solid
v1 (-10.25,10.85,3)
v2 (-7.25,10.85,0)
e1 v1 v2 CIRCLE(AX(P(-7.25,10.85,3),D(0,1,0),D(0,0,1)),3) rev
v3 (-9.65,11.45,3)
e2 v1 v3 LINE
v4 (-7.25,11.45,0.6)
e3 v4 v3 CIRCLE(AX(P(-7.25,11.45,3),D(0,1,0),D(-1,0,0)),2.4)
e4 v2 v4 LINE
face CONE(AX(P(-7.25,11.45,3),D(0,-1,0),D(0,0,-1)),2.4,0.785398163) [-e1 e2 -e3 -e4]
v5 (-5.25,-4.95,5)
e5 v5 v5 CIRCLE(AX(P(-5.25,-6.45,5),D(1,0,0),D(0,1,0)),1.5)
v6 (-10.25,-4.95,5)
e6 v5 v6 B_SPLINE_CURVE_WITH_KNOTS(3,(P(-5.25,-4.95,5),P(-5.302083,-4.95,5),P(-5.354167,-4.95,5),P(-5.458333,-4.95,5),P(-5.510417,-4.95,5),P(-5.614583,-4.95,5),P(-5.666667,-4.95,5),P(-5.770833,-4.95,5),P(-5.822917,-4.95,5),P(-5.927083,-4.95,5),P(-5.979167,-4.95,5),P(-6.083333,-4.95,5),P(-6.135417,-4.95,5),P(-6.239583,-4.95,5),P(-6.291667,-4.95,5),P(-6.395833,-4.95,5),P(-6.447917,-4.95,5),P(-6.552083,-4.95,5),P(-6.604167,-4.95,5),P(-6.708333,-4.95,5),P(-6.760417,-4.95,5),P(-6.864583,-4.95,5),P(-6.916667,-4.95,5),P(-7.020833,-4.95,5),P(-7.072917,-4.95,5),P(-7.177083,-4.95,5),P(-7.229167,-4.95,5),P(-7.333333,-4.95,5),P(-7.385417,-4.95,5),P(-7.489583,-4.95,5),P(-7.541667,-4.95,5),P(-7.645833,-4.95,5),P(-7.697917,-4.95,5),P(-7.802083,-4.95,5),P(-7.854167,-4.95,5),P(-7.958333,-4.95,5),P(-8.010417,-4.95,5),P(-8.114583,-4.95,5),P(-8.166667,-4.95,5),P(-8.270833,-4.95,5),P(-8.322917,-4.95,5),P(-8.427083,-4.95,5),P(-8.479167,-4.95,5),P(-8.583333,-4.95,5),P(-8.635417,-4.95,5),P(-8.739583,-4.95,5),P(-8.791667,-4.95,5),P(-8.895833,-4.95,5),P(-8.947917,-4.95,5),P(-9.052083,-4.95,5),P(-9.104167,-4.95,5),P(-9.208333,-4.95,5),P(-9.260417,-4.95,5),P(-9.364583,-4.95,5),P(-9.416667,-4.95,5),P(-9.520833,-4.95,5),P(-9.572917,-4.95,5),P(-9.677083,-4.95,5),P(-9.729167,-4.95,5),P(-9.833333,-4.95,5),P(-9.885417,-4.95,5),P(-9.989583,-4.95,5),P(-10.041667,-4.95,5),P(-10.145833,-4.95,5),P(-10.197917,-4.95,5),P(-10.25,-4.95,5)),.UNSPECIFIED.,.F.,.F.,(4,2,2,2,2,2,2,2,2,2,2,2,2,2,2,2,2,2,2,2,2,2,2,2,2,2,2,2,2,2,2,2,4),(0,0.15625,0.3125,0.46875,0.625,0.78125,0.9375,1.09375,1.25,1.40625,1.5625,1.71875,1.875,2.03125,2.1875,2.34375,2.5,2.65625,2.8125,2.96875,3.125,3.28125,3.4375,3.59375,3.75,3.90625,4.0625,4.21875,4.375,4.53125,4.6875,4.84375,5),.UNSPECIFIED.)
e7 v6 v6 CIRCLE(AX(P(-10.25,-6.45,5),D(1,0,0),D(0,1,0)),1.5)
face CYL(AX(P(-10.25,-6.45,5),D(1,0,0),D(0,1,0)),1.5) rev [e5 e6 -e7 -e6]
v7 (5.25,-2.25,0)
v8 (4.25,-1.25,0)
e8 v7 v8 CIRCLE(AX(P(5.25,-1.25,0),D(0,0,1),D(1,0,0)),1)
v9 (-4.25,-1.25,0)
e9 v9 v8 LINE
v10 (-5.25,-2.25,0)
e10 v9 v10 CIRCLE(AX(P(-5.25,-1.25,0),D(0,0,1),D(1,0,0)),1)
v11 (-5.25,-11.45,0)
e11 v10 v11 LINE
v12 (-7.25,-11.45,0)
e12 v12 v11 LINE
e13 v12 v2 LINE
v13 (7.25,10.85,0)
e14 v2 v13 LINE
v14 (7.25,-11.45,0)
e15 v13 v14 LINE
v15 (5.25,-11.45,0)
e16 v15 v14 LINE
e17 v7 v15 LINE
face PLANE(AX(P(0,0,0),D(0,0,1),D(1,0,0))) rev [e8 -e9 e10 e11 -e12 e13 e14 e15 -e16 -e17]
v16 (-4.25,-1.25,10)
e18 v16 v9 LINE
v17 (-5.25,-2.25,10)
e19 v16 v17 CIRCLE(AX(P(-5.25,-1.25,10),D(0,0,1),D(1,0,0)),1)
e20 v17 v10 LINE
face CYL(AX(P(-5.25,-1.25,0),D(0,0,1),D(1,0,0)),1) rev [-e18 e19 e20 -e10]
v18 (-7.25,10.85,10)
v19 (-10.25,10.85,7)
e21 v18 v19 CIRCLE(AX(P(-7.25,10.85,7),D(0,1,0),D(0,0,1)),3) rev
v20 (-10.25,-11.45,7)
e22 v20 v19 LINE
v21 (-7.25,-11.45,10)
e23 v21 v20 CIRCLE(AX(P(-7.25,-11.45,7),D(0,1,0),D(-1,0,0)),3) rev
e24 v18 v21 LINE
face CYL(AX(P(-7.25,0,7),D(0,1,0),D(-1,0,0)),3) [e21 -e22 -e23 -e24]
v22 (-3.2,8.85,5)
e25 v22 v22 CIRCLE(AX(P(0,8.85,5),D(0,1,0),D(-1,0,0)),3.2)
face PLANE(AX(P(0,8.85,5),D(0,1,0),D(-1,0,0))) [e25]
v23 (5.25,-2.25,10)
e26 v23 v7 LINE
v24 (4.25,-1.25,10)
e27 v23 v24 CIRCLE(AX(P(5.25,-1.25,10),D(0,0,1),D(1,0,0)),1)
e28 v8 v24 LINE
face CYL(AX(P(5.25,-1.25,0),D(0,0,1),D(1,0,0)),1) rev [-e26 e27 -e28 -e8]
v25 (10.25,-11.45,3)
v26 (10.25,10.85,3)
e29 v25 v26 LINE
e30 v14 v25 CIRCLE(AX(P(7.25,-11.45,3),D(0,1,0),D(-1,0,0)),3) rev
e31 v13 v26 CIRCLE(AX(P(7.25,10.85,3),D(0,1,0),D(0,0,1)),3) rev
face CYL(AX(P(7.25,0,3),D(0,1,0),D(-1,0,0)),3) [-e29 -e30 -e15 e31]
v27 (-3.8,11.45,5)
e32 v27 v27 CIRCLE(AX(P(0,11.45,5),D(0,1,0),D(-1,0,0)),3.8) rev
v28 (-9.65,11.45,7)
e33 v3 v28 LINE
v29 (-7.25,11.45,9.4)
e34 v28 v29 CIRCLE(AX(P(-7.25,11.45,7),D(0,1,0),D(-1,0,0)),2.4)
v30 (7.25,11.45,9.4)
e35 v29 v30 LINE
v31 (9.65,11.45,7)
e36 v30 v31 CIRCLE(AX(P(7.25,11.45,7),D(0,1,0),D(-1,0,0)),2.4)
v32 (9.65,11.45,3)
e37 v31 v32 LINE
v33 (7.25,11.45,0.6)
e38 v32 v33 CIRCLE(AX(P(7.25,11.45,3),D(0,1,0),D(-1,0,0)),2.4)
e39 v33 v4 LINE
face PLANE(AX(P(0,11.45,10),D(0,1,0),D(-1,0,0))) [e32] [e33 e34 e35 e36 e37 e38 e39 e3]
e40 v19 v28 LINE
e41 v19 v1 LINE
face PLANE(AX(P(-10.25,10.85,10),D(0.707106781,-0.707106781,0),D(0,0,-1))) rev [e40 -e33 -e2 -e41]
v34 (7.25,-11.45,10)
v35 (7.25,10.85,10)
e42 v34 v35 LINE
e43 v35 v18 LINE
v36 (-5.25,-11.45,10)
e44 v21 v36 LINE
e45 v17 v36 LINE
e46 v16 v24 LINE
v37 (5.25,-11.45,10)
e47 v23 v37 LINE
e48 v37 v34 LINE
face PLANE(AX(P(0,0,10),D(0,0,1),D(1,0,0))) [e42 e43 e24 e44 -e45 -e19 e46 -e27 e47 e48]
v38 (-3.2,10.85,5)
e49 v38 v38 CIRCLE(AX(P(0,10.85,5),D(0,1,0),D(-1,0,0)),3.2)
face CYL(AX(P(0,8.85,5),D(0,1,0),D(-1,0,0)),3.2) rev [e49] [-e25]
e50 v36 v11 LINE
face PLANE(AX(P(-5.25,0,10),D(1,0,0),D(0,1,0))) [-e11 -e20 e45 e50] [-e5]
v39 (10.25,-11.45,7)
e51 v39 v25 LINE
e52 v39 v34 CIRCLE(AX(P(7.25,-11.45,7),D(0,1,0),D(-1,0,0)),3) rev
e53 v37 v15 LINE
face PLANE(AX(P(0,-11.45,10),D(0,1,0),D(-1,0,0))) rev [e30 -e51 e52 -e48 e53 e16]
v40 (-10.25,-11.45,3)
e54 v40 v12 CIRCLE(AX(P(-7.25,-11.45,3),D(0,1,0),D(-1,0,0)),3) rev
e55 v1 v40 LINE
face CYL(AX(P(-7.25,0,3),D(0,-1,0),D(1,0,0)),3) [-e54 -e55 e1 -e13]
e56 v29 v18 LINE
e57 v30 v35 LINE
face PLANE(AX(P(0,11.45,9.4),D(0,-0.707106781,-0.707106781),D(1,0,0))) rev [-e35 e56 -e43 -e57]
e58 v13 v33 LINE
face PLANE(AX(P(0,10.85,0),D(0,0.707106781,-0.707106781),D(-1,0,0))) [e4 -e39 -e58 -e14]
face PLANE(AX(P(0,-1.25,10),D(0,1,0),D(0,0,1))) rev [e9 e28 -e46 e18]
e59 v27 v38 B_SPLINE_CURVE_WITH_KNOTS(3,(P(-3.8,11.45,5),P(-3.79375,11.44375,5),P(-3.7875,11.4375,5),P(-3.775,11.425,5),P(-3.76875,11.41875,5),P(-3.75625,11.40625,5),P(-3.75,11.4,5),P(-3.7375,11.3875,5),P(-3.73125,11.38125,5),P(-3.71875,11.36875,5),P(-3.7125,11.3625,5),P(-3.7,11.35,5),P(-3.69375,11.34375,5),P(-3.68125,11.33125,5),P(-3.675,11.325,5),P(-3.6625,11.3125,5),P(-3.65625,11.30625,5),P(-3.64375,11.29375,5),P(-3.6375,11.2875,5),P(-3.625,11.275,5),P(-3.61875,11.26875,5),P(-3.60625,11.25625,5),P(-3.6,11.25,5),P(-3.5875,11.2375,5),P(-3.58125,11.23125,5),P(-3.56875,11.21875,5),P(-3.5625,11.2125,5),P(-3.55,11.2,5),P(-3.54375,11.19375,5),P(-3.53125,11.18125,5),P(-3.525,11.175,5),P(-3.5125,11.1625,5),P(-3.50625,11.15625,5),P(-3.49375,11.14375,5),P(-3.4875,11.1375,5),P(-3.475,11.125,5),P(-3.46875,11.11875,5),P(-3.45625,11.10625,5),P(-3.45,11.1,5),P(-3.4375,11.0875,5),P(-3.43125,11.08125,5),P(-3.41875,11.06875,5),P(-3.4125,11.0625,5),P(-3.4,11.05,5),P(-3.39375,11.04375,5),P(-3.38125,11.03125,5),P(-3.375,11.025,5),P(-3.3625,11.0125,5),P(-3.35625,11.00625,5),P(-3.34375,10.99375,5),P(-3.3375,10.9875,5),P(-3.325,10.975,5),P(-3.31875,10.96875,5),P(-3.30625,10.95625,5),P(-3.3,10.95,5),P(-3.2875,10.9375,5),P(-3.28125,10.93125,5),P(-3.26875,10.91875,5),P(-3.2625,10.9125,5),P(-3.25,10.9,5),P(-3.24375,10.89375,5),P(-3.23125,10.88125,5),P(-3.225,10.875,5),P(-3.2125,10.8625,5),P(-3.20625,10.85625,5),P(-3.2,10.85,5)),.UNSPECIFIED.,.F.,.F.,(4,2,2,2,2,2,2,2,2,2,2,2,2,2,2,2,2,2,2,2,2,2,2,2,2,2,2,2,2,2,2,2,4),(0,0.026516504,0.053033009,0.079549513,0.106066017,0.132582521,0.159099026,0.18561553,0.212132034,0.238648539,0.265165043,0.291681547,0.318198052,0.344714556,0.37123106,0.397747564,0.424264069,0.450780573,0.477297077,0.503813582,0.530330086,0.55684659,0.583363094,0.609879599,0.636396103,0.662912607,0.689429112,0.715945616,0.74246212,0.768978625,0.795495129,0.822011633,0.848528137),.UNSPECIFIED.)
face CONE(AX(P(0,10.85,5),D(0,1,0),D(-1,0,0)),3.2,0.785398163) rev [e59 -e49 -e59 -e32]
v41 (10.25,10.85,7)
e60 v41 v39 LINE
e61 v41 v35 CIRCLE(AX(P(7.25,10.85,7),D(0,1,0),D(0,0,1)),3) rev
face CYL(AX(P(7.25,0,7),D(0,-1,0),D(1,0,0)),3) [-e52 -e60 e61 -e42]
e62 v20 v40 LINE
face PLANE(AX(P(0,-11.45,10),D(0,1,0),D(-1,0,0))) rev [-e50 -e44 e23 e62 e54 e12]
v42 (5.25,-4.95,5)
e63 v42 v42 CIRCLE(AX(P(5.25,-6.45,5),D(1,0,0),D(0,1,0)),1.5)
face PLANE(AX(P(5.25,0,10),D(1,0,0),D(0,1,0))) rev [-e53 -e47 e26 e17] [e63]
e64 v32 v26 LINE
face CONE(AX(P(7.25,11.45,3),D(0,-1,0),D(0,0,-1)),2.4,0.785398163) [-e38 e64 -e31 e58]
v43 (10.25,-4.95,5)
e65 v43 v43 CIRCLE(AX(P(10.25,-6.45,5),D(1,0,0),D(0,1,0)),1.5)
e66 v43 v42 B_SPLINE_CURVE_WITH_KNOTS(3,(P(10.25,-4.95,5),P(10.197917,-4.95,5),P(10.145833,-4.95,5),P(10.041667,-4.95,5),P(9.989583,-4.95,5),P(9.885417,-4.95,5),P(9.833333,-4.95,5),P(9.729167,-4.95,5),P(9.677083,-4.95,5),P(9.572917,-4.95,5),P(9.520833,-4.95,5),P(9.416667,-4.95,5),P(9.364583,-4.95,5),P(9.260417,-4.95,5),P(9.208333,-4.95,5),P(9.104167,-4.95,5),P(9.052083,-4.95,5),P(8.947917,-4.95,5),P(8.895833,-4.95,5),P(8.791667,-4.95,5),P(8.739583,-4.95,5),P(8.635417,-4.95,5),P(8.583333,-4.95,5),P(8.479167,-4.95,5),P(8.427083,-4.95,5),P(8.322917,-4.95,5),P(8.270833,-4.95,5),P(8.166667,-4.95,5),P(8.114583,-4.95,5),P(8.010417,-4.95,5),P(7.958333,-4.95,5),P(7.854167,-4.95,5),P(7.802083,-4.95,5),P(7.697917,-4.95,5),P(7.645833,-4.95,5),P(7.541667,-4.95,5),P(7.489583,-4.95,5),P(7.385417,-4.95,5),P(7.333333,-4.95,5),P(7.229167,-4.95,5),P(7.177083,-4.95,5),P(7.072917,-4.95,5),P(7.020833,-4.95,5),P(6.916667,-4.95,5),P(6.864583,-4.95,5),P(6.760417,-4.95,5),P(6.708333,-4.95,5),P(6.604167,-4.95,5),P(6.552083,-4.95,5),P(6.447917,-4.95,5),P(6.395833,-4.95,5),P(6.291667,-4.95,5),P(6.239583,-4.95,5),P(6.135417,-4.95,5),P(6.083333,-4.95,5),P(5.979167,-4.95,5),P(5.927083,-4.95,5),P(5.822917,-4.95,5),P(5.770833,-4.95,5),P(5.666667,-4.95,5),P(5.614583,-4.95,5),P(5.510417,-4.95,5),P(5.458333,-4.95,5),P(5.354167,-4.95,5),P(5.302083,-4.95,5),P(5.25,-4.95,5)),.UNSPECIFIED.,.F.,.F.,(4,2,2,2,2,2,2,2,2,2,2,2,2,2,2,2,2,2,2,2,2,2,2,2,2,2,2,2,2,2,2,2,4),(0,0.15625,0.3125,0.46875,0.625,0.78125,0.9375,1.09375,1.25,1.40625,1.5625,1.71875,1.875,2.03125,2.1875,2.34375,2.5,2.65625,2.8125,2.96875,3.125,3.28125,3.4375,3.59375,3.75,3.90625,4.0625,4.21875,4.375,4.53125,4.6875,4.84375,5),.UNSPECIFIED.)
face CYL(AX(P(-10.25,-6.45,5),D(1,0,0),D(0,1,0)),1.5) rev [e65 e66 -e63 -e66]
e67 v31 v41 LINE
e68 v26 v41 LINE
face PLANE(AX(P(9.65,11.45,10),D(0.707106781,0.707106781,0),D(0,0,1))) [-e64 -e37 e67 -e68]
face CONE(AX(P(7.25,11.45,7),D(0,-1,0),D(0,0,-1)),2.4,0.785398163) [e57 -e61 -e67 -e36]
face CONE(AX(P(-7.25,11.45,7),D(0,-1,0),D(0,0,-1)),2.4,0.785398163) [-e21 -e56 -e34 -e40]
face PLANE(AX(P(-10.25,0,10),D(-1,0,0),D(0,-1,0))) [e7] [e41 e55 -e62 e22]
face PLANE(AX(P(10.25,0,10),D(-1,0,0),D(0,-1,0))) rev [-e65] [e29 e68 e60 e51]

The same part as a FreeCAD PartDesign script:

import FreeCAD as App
import Part
import Sketcher
Q = App.Units.Quantity


def edges_at(feature, points):
    """Names of the edges that pass closest to the given points."""
    edges = feature.Shape.Edges
    near = lambda p: min(range(len(edges)), key=lambda i: edges[i].distToShape(Part.Vertex(*p))[0])
    return sorted({f"Edge{near(p) + 1}" for p in points})


def add_polygon(sketch, points):
    """Adds a closed chain of lines whose ends are joined by coincident constraints."""
    first, n = sketch.GeometryCount, len(points)
    for a, b in zip(points, points[1:] + points[:1]):
        sketch.addGeometry(Part.LineSegment(App.Vector(*a, 0), App.Vector(*b, 0)), False)
    for i in range(n):
        sketch.addConstraint(Sketcher.Constraint("Coincident", first + i, 2, first + (i + 1) % n, 1))

doc = App.newDocument("Part")
params = doc.addObject("Spreadsheet::Sheet", "Params")
for row, (alias, value) in enumerate([
    ("sketch1_width", "5 mm"),
    ("sketch1_width2", "10.5 mm"),
    ("sketch1_height", "22.9 mm"),
    ("sketch1_height2", "10.2 mm"),
    ("pad1_length", "10 mm"),
    ("sketch2_diameter", "6.4 mm"),
    ("pocket1_length", "2.6 mm"),
    ("sketch3_diameter", "3 mm"),
    ("sketch4_diameter", "2 mm"),
    ("fillet_radius", "3 mm"),
    ("chamfer_size", "0.6 mm"),
], start=1):
    params.set(f"A{row}", alias)
    params.set(f"B{row}", "=" + value)
    params.setAlias(f"B{row}", alias)

body = doc.addObject("PartDesign::Body", "Body")

# Sketch on XY plane
sketch1 = body.newObject("Sketcher::SketchObject", "Sketch")
sketch1.AttachmentSupport = (doc.getObject("XY_Plane"), [""])
sketch1.MapMode = "FlatFace"
add_polygon(sketch1, [(-10, 11), (-10, -11), (-5, -11), (-5, -1), (5, -1), (5, -11), (10, -11), (10, 11)])  # lines 0-7
sketch1.addConstraint([
    Sketcher.Constraint("Vertical", 0),
    Sketcher.Constraint("Horizontal", 1),
    Sketcher.Constraint("Vertical", 2),
    Sketcher.Constraint("Horizontal", 3),
    Sketcher.Constraint("Vertical", 4),
    Sketcher.Constraint("Horizontal", 5),
    Sketcher.Constraint("Vertical", 6),
    Sketcher.Constraint("Horizontal", 7),
    Sketcher.Constraint("Symmetric", 0, 2, 6, 2, -1, 1),
    Sketcher.Constraint("Symmetric", 1, 2, 4, 2, -2),
    Sketcher.Constraint("DistanceX", 1, 1, 1, 2, Q("5 mm")),
    Sketcher.Constraint("DistanceX", 3, 1, 3, 2, Q("10.5 mm")),
    Sketcher.Constraint("DistanceY", 0, 2, 0, 1, Q("22.9 mm")),
    Sketcher.Constraint("DistanceY", 2, 1, 2, 2, Q("10.2 mm")),
])
sketch1.setExpression("Constraints[18]", "Params.sketch1_width")
sketch1.setExpression("Constraints[19]", "Params.sketch1_width2")
sketch1.setExpression("Constraints[20]", "Params.sketch1_height")
sketch1.setExpression("Constraints[21]", "Params.sketch1_height2")
pad1 = body.newObject("PartDesign::Pad", "Pad")
pad1.Profile = sketch1
pad1.setExpression("Length", "Params.pad1_length")

# Sketch on XZ plane
sketch2 = body.newObject("Sketcher::SketchObject", "Sketch001")
sketch2.AttachmentSupport = (doc.getObject("XZ_Plane"), [""])
sketch2.MapMode = "FlatFace"
sketch2.AttachmentOffset = App.Placement(App.Vector(0, 0, -11.45), App.Rotation())
sketch2.addGeometry(Part.Circle(App.Vector(0, 5, 0), App.Vector(0, 0, 1), 3.2), False)
sketch2.addConstraint([
    Sketcher.Constraint("PointOnObject", 0, 3, -2),
    Sketcher.Constraint("Diameter", 0, Q("6.4 mm")),
    Sketcher.Constraint("DistanceY", -1, 1, 0, 3, Q("5 mm")),
])
sketch2.setExpression("Constraints[1]", "Params.sketch2_diameter")
pocket1 = body.newObject("PartDesign::Pocket", "Pocket")
pocket1.Profile = sketch2
pocket1.setExpression("Length", "Params.pocket1_length")
pocket1.Reversed = True

# Sketch on YZ plane
sketch3 = body.newObject("Sketcher::SketchObject", "Sketch002")
sketch3.AttachmentSupport = (doc.getObject("YZ_Plane"), [""])
sketch3.MapMode = "FlatFace"
sketch3.AttachmentOffset = App.Placement(App.Vector(0, 0, 10.25), App.Rotation())
sketch3.addGeometry(Part.Circle(App.Vector(-6.5, 5, 0), App.Vector(0, 0, 1), 1.5), False)
sketch3.addConstraint([
    Sketcher.Constraint("Diameter", 0, Q("3 mm")),
    Sketcher.Constraint("DistanceY", -1, 1, 0, 3, Q("5 mm")),
    Sketcher.Constraint("DistanceX", 0, 3, -1, 1, Q("6.45 mm")),
])
sketch3.setExpression("Constraints[0]", "Params.sketch3_diameter")
pocket2 = body.newObject("PartDesign::Pocket", "Pocket001")
pocket2.Profile = sketch3
pocket2.Type = "ThroughAll"

# Sketch on XY plane
sketch4 = body.newObject("Sketcher::SketchObject", "Sketch003")
sketch4.AttachmentSupport = (doc.getObject("XY_Plane"), [""])
sketch4.MapMode = "FlatFace"
sketch4.AttachmentOffset = App.Placement(App.Vector(0, 0, 10), App.Rotation())
sketch4.addGeometry([
    Part.Circle(App.Vector(5.2, -1.2, 0), App.Vector(0, 0, 1), 1),
    Part.Circle(App.Vector(-5.2, -1.2, 0), App.Vector(0, 0, 1), 1),
], False)
sketch4.addConstraint([
    Sketcher.Constraint("Equal", 0, 1),
    Sketcher.Constraint("Symmetric", 0, 3, 1, 3, -2),
    Sketcher.Constraint("Diameter", 0, Q("2 mm")),
    Sketcher.Constraint("DistanceX", 1, 3, 0, 3, Q("10.5 mm")),
    Sketcher.Constraint("DistanceY", 0, 3, -1, 1, Q("1.25 mm")),
])
sketch4.setExpression("Constraints[2]", "Params.sketch4_diameter")
pocket3 = body.newObject("PartDesign::Pocket", "Pocket002")
pocket3.Profile = sketch4
pocket3.Type = "ThroughAll"
doc.recompute()

fillet = body.newObject("PartDesign::Fillet", "Fillet")
fillet.Base = (pocket3, edges_at(pocket3, [
    (-10.25, 0, 0),
    (10.25, 0, 0),
    (10.25, 0, 10),
    (-10.25, 0, 10),
]))
fillet.setExpression("Radius", "Params.fillet_radius")
doc.recompute()

chamfer = body.newObject("PartDesign::Chamfer", "Chamfer")
chamfer.Base = (fillet, edges_at(fillet, [
    (3.2, 11.45, 5),
    (0, 11.45, 0),
    (-10.25, 11.45, 5),
    (0, 11.45, 10),
    (10.25, 11.45, 5),
    (9.371, 11.45, 9.121),
    (9.371, 11.45, 0.879),
    (-9.371, 11.45, 9.121),
    (-9.371, 11.45, 0.879),
]))
chamfer.setExpression("Size", "Params.chamfer_size")

doc.recompute()
